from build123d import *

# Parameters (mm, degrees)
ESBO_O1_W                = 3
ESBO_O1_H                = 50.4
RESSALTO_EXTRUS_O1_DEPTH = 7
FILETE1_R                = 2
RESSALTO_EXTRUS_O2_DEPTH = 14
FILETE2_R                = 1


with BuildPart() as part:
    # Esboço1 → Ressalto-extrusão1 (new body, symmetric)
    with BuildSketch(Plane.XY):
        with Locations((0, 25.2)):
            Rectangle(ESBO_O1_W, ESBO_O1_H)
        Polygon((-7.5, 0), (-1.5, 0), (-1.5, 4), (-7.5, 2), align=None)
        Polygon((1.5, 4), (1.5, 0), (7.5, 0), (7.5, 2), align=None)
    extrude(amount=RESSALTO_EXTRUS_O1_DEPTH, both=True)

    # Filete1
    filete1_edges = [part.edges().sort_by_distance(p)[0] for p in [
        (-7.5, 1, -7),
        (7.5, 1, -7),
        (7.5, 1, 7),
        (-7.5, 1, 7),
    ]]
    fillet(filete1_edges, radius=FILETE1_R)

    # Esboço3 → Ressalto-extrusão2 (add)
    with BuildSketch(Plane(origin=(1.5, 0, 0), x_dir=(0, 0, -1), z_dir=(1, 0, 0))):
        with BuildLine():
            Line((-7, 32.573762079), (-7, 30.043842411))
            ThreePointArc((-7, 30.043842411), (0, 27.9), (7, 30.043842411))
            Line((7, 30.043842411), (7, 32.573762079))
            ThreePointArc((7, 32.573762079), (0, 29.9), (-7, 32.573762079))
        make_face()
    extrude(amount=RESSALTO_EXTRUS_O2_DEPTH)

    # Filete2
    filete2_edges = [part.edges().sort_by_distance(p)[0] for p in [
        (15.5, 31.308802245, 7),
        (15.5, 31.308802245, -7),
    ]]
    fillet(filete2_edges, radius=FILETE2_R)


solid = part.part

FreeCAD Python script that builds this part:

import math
import FreeCAD as App
import Part
import Sketcher
from FreeCAD import Vector


def edges_at(feature, points):
    """Names of the edges that pass closest to the given points."""
    edges = feature.Shape.Edges
    near = lambda p: min(range(len(edges)), key=lambda i: edges[i].distToShape(Part.Vertex(*p))[0])
    return sorted({f"Edge{near(p) + 1}" for p in points})


def add_polygon(sketch, points):
    """Adds a closed chain of lines whose ends are joined by coincident constraints."""
    first, n = sketch.GeometryCount, len(points)
    for a, b in zip(points, points[1:] + points[:1]):
        sketch.addGeometry(Part.LineSegment(App.Vector(*a, 0), App.Vector(*b, 0)), False)
    for i in range(n):
        sketch.addConstraint(Sketcher.Constraint("Coincident", first + i, 2, first + (i + 1) % n, 1))

doc = App.newDocument("Part")
body = doc.addObject("PartDesign::Body", "Body")

# Sketch on XY plane
sketch1 = doc.addObject("Sketcher::SketchObject", "Sketch")
body.addObject(sketch1)
sketch1.AttachmentSupport = (doc.XY_Plane, [""])
sketch1.MapMode = "FlatFace"
add_polygon(sketch1, [(-1.5, 50.4), (-1.5, 4), (-7.5, 2), (-7.5, 0), (7.5, 0), (7.5, 2), (1.5, 4), (1.5, 50.4)])  # lines 0-7
sketch1.addConstraint(Sketcher.Constraint("Vertical", 0))
sketch1.addConstraint(Sketcher.Constraint("Vertical", 2))
sketch1.addConstraint(Sketcher.Constraint("Horizontal", 3))
sketch1.addConstraint(Sketcher.Constraint("Vertical", 4))
sketch1.addConstraint(Sketcher.Constraint("Vertical", 6))
sketch1.addConstraint(Sketcher.Constraint("Horizontal", 7))
sketch1.addConstraint(Sketcher.Constraint("Symmetric", 2, 2, 3, 2, -1, 1))
sketch1.addConstraint(Sketcher.Constraint("Symmetric", 0, 2, 5, 2, -2))
sketch1.addConstraint(Sketcher.Constraint("Horizontal", 1, 2, 4, 2))
sketch1.addConstraint(Sketcher.Constraint("DistanceX", 3, 1, 3, 2, 15.0))
sketch1.addConstraint(Sketcher.Constraint("DistanceX", 7, 2, 7, 1, 3.0))
sketch1.addConstraint(Sketcher.Constraint("DistanceY", 2, 2, 2, 1, 2.0))
sketch1.addConstraint(Sketcher.Constraint("DistanceY", 0, 2, 0, 1, 46.4))
sketch1.addConstraint(Sketcher.Constraint("DistanceY", -1, 1, 0, 2, 4.0))
pad1 = doc.addObject("PartDesign::Pad", "Pad")
body.addObject(pad1)
pad1.Profile = sketch1
pad1.Length = 14
pad1.Midplane = True
doc.recompute()

fillet = doc.addObject("PartDesign::Fillet", "Fillet")
body.addObject(fillet)
fillet.Base = (pad1, edges_at(pad1, [
    (-7.5, 1, -7),
    (7.5, 1, -7),
    (7.5, 1, 7),
    (-7.5, 1, 7),
]))
fillet.Radius = 2

# Sketch on YZ plane
sketch2 = doc.addObject("Sketcher::SketchObject", "Sketch001")
body.addObject(sketch2)
sketch2.AttachmentSupport = (doc.YZ_Plane, [""])
sketch2.MapMode = "FlatFace"
sketch2.AttachmentOffset = App.Placement(Vector(0, 0, 1.5), App.Rotation())
sketch2.addGeometry(Part.LineSegment(Vector(32.6, 7, 0), Vector(30, 7, 0)), False)
sketch2.addGeometry(Part.ArcOfCircle(Part.Circle(Vector(40.4, 0, 0), Vector(0, 0, 1), 12.5), math.radians(146), math.radians(214)), False)
sketch2.addGeometry(Part.LineSegment(Vector(30, -7, 0), Vector(32.6, -7, 0)), False)
sketch2.addGeometry(Part.ArcOfCircle(Part.Circle(Vector(40.4, 0, 0), Vector(0, 0, 1), 10.5), math.radians(138), math.radians(222)), False)
sketch2.addConstraint(Sketcher.Constraint("Coincident", 0, 2, 1, 1))
sketch2.addConstraint(Sketcher.Constraint("Coincident", 1, 2, 2, 1))
sketch2.addConstraint(Sketcher.Constraint("Coincident", 2, 2, 3, 2))
sketch2.addConstraint(Sketcher.Constraint("Coincident", 3, 1, 0, 1))
sketch2.addConstraint(Sketcher.Constraint("Horizontal", 0))
sketch2.addConstraint(Sketcher.Constraint("Horizontal", 2))
sketch2.addConstraint(Sketcher.Constraint("Coincident", 3, 3, 1, 3))
sketch2.addConstraint(Sketcher.Constraint("Symmetric", 0, 2, 1, 2, -1))
sketch2.addConstraint(Sketcher.Constraint("Radius", 1, 12.5))
sketch2.addConstraint(Sketcher.Constraint("Radius", 3, 10.5))
sketch2.addConstraint(Sketcher.Constraint("DistanceY", -1, 1, 0, 2, 7.0))
sketch2.addConstraint(Sketcher.Constraint("DistanceX", -1, 1, 1, 3, 40.4))
pad2 = doc.addObject("PartDesign::Pad", "Pad001")
body.addObject(pad2)
pad2.Profile = sketch2
pad2.Length = 14
doc.recompute()

fillet2 = doc.addObject("PartDesign::Fillet", "Fillet001")
body.addObject(fillet2)
fillet2.Base = (pad2, edges_at(pad2, [(15.5, 31.309, 7), (15.5, 31.309, -7)]))
fillet2.Radius = 1

doc.recompute()
